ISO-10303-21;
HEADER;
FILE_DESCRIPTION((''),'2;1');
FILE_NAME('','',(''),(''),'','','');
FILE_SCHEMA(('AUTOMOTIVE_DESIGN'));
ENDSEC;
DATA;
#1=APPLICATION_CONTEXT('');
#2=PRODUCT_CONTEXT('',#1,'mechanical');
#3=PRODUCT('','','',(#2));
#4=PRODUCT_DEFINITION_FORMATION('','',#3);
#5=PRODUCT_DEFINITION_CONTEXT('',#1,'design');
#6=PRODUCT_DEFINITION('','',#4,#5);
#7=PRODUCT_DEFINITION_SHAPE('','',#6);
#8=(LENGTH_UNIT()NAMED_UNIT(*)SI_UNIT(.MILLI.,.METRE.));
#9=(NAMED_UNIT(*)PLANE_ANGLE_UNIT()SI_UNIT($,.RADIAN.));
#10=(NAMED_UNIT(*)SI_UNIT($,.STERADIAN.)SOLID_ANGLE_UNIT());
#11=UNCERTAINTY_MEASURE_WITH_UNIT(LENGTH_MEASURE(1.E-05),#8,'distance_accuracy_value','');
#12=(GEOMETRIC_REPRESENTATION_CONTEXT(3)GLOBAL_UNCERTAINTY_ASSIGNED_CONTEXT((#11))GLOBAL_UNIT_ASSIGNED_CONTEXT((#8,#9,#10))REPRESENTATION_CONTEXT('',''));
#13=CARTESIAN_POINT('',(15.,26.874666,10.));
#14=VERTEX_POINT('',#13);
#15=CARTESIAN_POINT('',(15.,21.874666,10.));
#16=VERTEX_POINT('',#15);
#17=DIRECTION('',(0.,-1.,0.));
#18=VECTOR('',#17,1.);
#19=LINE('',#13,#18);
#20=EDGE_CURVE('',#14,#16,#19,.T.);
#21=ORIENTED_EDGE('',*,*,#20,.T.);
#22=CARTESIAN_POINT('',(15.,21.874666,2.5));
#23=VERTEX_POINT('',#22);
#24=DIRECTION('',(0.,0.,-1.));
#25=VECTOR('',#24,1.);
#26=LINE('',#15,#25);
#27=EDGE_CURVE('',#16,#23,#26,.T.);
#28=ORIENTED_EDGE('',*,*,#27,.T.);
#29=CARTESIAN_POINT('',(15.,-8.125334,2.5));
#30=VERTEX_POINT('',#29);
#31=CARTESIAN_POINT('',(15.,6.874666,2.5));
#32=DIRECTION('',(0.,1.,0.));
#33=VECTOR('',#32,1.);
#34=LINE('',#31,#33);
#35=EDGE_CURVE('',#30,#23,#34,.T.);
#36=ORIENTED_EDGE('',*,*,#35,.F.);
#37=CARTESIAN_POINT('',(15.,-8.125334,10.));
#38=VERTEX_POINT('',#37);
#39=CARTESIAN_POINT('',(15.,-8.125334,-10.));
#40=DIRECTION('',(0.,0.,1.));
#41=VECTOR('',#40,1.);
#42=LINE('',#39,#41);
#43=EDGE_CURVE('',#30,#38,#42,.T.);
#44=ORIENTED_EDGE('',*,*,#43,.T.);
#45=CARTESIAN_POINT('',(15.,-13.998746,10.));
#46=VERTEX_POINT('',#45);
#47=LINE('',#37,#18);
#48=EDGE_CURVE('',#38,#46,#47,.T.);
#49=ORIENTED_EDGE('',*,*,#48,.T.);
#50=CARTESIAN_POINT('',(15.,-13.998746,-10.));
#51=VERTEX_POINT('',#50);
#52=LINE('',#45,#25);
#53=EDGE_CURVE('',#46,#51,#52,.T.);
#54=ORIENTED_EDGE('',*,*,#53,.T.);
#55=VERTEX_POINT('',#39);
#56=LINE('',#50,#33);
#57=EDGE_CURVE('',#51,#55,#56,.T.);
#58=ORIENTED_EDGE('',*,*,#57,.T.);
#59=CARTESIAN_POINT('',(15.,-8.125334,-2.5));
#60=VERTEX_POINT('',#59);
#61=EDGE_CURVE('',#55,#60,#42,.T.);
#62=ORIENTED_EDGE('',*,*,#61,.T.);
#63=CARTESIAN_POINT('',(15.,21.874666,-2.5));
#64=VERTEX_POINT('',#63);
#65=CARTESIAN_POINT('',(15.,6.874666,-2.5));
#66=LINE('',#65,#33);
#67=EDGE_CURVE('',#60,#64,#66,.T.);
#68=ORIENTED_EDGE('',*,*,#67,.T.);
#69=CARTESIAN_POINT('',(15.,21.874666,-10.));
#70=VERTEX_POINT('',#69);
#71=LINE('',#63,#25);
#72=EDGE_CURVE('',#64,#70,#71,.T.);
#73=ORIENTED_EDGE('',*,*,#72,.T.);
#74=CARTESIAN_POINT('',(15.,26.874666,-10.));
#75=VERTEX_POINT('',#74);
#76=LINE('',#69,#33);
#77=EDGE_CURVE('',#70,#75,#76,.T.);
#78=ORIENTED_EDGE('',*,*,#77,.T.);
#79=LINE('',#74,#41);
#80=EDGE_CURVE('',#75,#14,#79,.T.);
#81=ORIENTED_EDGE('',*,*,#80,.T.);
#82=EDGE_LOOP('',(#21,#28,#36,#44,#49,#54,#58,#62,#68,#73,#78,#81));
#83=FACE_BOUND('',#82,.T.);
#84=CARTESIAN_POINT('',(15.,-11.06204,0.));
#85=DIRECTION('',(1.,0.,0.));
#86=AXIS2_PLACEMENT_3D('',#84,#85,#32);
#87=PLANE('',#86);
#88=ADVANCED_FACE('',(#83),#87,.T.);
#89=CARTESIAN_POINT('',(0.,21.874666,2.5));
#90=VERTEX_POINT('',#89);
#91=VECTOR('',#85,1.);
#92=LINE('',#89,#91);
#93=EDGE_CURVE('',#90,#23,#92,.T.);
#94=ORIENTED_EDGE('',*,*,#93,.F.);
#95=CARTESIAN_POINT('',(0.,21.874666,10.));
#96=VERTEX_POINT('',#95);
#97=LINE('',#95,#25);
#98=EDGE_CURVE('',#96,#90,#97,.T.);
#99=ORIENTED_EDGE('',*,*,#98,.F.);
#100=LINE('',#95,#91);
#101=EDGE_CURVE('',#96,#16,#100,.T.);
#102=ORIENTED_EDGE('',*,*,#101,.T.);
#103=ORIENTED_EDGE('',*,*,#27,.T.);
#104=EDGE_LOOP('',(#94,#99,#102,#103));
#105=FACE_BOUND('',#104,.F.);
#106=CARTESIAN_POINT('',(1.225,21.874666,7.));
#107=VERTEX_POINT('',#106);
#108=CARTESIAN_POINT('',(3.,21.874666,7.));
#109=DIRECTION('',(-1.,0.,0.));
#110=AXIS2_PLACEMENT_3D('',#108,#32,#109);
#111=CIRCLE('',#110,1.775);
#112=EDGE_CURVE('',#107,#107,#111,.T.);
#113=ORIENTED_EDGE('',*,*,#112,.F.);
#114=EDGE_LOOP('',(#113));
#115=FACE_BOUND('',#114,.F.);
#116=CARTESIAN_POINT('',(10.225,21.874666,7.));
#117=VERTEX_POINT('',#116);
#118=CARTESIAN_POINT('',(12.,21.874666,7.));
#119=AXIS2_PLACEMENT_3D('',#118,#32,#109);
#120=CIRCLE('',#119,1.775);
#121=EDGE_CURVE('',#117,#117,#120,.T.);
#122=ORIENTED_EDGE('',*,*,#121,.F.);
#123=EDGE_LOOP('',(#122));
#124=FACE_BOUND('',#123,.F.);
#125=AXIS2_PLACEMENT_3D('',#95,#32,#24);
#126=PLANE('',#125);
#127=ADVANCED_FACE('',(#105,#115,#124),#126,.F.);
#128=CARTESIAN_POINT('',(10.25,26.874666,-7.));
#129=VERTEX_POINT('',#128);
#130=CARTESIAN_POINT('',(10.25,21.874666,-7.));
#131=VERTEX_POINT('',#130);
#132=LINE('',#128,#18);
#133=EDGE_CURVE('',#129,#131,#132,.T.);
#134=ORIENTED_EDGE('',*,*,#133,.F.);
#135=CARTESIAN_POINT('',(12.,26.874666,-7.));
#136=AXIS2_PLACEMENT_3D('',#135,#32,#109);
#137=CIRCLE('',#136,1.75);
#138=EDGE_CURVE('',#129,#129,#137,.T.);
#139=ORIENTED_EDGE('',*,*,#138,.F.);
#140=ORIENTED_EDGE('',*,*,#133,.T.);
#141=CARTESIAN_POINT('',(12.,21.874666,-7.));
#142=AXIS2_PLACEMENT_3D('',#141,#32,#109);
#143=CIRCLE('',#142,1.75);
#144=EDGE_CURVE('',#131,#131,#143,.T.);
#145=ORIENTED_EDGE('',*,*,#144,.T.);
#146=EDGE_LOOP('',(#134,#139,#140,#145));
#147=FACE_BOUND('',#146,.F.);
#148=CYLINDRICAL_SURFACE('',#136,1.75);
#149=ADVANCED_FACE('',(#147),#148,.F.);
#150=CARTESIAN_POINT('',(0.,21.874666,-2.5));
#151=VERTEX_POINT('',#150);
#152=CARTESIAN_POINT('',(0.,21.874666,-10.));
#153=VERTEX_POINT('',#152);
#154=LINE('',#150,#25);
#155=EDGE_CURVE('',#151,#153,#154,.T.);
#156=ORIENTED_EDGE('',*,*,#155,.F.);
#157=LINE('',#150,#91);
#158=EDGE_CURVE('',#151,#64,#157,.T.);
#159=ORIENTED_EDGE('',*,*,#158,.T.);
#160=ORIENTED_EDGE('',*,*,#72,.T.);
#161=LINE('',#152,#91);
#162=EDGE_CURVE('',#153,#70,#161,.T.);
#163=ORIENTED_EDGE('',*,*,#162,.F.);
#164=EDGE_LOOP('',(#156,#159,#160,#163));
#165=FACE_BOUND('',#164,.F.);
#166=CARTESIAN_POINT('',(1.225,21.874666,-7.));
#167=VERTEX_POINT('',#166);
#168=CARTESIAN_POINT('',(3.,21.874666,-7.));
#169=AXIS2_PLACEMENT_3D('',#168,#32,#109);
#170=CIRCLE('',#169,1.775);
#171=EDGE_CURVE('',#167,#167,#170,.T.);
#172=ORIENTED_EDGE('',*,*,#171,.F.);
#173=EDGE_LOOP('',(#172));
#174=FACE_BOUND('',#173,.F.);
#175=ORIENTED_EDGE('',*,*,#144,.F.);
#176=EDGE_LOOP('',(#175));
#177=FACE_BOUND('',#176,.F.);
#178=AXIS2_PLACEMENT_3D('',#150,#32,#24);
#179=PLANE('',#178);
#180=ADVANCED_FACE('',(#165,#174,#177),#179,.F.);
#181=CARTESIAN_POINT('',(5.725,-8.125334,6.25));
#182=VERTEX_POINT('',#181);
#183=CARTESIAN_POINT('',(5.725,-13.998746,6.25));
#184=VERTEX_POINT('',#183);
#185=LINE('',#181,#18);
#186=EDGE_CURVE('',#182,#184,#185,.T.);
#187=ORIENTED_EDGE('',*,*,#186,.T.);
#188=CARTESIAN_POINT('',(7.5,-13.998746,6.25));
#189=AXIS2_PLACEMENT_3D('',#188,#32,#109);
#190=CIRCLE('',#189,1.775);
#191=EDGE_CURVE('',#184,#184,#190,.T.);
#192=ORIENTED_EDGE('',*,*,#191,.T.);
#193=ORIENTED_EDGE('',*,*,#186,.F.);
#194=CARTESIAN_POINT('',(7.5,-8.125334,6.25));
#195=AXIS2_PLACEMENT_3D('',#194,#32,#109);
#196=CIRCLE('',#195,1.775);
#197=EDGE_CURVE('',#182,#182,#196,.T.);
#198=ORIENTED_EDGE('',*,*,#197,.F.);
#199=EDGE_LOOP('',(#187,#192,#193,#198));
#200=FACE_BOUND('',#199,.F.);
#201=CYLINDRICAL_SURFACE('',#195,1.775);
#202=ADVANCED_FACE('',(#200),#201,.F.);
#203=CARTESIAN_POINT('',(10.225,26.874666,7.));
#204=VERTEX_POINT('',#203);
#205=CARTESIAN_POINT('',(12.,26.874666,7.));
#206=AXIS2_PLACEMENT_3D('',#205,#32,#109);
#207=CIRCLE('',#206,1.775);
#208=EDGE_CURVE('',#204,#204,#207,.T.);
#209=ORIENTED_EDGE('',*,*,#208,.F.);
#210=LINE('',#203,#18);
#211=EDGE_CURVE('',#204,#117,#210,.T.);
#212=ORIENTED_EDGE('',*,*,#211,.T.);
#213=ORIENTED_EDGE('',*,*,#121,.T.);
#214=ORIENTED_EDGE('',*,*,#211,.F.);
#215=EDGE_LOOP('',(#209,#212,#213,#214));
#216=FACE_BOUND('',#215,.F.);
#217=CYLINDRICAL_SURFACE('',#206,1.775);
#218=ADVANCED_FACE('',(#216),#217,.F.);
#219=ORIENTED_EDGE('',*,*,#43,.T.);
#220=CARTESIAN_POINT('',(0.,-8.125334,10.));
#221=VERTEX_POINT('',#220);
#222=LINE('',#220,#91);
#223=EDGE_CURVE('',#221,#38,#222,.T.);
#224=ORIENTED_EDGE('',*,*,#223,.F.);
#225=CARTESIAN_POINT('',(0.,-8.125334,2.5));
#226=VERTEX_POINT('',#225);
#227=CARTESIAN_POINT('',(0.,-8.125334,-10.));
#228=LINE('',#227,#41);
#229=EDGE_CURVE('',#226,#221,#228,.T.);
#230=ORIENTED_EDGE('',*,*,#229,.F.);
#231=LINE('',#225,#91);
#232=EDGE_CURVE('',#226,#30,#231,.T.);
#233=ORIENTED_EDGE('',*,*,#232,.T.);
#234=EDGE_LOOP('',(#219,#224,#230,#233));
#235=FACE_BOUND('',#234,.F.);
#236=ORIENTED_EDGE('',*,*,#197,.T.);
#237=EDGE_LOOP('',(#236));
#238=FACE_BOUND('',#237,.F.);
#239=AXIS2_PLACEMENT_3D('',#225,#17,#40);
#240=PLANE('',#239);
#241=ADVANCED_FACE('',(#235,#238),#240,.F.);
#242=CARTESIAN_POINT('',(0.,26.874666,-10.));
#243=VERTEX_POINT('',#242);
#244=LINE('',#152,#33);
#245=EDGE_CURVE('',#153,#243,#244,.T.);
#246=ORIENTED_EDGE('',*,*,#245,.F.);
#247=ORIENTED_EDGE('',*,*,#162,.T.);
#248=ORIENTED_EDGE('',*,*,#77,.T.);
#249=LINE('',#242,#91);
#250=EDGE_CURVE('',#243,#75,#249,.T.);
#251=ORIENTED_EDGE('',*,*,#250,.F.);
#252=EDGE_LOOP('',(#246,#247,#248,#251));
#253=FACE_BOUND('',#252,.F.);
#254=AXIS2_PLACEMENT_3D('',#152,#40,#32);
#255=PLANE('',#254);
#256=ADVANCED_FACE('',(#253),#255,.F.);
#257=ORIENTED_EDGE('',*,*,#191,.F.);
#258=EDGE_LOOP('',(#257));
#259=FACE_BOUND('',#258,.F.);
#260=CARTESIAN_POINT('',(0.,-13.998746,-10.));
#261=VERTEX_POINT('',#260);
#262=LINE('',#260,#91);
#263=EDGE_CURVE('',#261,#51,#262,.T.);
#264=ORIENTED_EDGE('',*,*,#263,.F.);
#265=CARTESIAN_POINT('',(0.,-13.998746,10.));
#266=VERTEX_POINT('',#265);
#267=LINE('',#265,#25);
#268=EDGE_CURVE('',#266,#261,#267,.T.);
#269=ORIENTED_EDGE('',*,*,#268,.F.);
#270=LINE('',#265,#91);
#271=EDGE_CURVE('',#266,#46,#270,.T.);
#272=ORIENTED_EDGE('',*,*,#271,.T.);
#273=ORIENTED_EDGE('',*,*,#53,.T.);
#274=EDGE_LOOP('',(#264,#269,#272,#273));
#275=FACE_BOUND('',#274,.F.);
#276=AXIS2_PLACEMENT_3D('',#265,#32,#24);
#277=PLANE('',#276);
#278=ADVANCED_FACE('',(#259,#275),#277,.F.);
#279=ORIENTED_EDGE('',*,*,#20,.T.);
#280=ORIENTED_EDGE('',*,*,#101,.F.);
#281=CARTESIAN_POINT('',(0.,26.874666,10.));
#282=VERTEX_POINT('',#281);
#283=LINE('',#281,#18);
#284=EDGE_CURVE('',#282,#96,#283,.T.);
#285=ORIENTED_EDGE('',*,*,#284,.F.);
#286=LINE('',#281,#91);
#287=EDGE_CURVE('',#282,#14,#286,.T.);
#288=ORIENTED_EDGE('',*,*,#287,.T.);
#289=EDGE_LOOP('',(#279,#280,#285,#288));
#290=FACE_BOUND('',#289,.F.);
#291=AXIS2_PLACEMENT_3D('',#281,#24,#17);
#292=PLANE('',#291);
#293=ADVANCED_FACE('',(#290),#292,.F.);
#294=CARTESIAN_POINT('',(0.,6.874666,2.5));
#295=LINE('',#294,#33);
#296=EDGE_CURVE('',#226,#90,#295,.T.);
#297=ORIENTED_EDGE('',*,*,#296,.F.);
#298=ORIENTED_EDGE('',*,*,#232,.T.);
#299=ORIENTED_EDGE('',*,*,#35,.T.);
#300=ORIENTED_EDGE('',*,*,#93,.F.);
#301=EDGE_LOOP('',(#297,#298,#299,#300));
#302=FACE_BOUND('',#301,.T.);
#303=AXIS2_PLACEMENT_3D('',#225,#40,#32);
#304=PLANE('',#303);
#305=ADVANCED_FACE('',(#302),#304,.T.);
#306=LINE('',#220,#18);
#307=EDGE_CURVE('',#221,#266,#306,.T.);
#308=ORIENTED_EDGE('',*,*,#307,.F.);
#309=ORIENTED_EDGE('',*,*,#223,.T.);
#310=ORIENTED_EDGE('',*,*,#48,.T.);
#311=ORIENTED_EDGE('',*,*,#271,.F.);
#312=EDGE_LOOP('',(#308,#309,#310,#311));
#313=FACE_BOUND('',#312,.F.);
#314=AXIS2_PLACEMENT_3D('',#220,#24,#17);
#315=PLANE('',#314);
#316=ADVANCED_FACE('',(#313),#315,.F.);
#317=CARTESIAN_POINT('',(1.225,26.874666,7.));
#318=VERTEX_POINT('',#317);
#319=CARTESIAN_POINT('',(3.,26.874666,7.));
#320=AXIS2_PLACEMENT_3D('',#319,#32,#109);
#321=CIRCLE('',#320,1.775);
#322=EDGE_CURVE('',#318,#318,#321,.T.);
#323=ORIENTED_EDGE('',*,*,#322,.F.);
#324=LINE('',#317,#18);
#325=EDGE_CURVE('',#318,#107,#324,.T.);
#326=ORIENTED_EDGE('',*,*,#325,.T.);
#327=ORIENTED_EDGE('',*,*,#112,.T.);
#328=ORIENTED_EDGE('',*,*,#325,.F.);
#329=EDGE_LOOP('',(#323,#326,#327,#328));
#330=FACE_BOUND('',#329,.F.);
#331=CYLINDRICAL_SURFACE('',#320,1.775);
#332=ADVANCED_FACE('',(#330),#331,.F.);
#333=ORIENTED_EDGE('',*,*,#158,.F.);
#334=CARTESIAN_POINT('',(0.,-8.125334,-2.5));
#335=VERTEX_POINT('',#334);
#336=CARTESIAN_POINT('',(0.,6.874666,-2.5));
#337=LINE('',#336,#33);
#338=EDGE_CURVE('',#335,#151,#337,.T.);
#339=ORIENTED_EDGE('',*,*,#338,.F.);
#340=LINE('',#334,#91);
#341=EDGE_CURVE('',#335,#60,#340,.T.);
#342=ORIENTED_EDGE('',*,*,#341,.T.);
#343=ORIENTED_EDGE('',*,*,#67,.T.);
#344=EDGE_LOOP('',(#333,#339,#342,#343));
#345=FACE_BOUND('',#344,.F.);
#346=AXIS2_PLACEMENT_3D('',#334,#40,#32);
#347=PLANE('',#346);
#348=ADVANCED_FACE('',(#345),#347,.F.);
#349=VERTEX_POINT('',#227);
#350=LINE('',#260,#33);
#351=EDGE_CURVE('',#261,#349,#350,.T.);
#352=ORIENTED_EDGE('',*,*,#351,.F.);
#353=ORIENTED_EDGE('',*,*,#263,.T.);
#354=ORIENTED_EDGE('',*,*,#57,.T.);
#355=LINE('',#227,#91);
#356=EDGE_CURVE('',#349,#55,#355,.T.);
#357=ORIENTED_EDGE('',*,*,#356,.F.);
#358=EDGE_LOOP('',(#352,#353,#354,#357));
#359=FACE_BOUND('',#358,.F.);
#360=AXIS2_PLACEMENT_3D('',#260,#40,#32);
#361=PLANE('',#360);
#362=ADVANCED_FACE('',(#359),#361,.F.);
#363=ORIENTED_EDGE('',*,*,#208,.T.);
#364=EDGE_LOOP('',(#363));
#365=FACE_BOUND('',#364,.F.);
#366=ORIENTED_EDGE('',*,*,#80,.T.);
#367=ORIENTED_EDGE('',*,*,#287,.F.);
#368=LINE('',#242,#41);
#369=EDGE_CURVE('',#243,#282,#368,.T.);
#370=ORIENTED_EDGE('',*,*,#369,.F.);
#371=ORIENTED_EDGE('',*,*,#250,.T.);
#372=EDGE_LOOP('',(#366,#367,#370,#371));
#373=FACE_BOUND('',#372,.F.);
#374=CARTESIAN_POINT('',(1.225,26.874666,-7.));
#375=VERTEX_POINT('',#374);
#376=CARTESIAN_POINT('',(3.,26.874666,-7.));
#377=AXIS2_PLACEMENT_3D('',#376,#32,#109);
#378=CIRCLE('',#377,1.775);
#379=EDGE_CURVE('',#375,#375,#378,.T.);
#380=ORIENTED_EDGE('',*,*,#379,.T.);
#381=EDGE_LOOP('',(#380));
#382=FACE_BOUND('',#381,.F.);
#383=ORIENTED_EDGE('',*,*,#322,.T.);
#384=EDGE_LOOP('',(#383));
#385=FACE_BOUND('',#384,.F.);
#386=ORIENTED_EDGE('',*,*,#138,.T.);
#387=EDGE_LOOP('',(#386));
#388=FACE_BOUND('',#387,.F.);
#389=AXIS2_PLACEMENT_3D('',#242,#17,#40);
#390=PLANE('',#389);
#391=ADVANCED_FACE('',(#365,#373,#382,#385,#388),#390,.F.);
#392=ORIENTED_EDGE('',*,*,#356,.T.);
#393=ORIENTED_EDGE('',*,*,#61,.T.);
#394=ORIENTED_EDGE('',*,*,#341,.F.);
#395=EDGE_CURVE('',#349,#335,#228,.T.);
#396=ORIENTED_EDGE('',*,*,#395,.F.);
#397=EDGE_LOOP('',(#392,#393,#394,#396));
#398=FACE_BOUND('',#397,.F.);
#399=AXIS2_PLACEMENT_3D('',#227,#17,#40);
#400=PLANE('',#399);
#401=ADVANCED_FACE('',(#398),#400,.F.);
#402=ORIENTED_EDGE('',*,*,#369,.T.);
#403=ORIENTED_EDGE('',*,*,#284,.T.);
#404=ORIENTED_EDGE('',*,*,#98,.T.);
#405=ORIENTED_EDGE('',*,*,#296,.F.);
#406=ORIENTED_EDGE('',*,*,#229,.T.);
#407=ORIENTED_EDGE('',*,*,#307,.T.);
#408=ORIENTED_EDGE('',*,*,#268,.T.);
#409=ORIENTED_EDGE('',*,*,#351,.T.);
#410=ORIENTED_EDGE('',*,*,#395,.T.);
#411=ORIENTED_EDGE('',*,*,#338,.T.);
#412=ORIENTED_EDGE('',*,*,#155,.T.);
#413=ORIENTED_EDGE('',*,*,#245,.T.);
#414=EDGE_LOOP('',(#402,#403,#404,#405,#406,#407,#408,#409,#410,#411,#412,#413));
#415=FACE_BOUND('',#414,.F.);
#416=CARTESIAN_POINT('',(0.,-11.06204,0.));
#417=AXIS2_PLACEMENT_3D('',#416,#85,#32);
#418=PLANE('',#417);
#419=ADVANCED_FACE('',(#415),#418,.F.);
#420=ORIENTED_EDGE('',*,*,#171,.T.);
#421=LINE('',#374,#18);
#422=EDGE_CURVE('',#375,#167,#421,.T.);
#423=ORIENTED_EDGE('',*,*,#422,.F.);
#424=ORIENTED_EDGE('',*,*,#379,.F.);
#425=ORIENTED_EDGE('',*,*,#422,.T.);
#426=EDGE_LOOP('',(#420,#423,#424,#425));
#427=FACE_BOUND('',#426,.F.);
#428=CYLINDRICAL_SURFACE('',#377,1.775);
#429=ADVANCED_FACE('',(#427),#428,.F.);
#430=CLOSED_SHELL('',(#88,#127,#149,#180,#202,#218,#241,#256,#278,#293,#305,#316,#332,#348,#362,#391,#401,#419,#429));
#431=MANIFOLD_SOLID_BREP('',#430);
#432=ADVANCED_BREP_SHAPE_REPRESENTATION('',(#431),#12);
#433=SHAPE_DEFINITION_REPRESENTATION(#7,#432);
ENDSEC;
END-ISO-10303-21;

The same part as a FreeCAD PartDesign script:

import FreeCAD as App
import Part
import Sketcher

doc = App.newDocument("Part")
body = doc.addObject("PartDesign::Body", "Body")

sketch1 = body.newObject("Sketcher::SketchObject", "Sketch")
sketch1.AttachmentSupport = (doc.getObject("YZ_Plane"), [""])
sketch1.MapMode = "FlatFace"
sketch1.addGeometry(Part.LineSegment(App.Vector(-8, 10, 0), App.Vector(-14, 10, 0)), False)
sketch1.addGeometry(Part.LineSegment(App.Vector(-14, 10, 0), App.Vector(-14, -10, 0)), False)
sketch1.addGeometry(Part.LineSegment(App.Vector(-14, -10, 0), App.Vector(-8, -10, 0)), False)
sketch1.addGeometry(Part.LineSegment(App.Vector(-8, -10, 0), App.Vector(-8, -2, 0)), False)
sketch1.addGeometry(Part.LineSegment(App.Vector(-8, -2, 0), App.Vector(22, -2, 0)), False)
sketch1.addGeometry(Part.LineSegment(App.Vector(22, -2, 0), App.Vector(22, -10, 0)), False)
sketch1.addGeometry(Part.LineSegment(App.Vector(22, -10, 0), App.Vector(27, -10, 0)), False)
sketch1.addGeometry(Part.LineSegment(App.Vector(27, -10, 0), App.Vector(27, 10, 0)), False)
sketch1.addGeometry(Part.LineSegment(App.Vector(27, 10, 0), App.Vector(22, 10, 0)), False)
sketch1.addGeometry(Part.LineSegment(App.Vector(22, 10, 0), App.Vector(22, 2, 0)), False)
sketch1.addGeometry(Part.LineSegment(App.Vector(22, 2, 0), App.Vector(-8, 2, 0)), False)
sketch1.addGeometry(Part.LineSegment(App.Vector(-8, 2, 0), App.Vector(-8, 10, 0)), False)
sketch1.addConstraint(Sketcher.Constraint("Coincident", 0, 2, 1, 1))
sketch1.addConstraint(Sketcher.Constraint("Coincident", 1, 2, 2, 1))
sketch1.addConstraint(Sketcher.Constraint("Coincident", 2, 2, 3, 1))
sketch1.addConstraint(Sketcher.Constraint("Coincident", 3, 2, 4, 1))
sketch1.addConstraint(Sketcher.Constraint("Coincident", 4, 2, 5, 1))
sketch1.addConstraint(Sketcher.Constraint("Coincident", 5, 2, 6, 1))
sketch1.addConstraint(Sketcher.Constraint("Coincident", 6, 2, 7, 1))
sketch1.addConstraint(Sketcher.Constraint("Coincident", 7, 2, 8, 1))
sketch1.addConstraint(Sketcher.Constraint("Coincident", 8, 2, 9, 1))
sketch1.addConstraint(Sketcher.Constraint("Coincident", 9, 2, 10, 1))
sketch1.addConstraint(Sketcher.Constraint("Coincident", 10, 2, 11, 1))
sketch1.addConstraint(Sketcher.Constraint("Coincident", 11, 2, 0, 1))
sketch1.addConstraint(Sketcher.Constraint("Horizontal", 0))
sketch1.addConstraint(Sketcher.Constraint("Vertical", 1))
sketch1.addConstraint(Sketcher.Constraint("Horizontal", 2))
sketch1.addConstraint(Sketcher.Constraint("Vertical", 3))
sketch1.addConstraint(Sketcher.Constraint("Horizontal", 4))
sketch1.addConstraint(Sketcher.Constraint("Vertical", 5))
sketch1.addConstraint(Sketcher.Constraint("Horizontal", 6))
sketch1.addConstraint(Sketcher.Constraint("Vertical", 7))
sketch1.addConstraint(Sketcher.Constraint("Horizontal", 8))
sketch1.addConstraint(Sketcher.Constraint("Vertical", 9))
sketch1.addConstraint(Sketcher.Constraint("Horizontal", 10))
sketch1.addConstraint(Sketcher.Constraint("Vertical", 11))
sketch1.addConstraint(Sketcher.Constraint("Symmetric", 5, 2, 8, 2, -1))
sketch1.addConstraint(Sketcher.Constraint("Symmetric", 3, 2, 10, 2, -1))
sketch1.addConstraint(Sketcher.Constraint("Horizontal", 2, 2, 5, 2))
sketch1.addConstraint(Sketcher.Constraint("Horizontal", 0, 2, 7, 2))
sketch1.addConstraint(Sketcher.Constraint("DistanceX", 4, 1, 4, 2, 30.0))
sketch1.addConstraint(Sketcher.Constraint("DistanceX", 6, 1, 6, 2, 5.0))
sketch1.addConstraint(Sketcher.Constraint("DistanceY", 1, 2, 1, 1, 20.0))
sketch1.addConstraint(Sketcher.Constraint("DistanceY", 3, 1, 3, 2, 7.5))
sketch1.addConstraint(Sketcher.Constraint("DistanceX", 0, 2, 0, 1, 5.873412))
sketch1.addConstraint(Sketcher.Constraint("DistanceX", 0, 2, -1, 1, 13.998746))
pad1 = body.newObject("PartDesign::Pad", "Pad")
pad1.Profile = sketch1
pad1.Length = 15

sketch2 = body.newObject("Sketcher::SketchObject", "Sketch001")
sketch2.AttachmentSupport = (doc.getObject("XZ_Plane"), [""])
sketch2.MapMode = "FlatFace"
sketch2.AttachmentOffset = App.Placement(App.Vector(0, 0, 8.125334), App.Rotation())
sketch2.addGeometry(Part.Circle(App.Vector(7.5, 6.2, 0), App.Vector(0, 0, 1), 1.8), False)
sketch2.addConstraint(Sketcher.Constraint("Diameter", 0, 3.55))
sketch2.addConstraint(Sketcher.Constraint("DistanceX", -1, 1, 0, 3, 7.5))
sketch2.addConstraint(Sketcher.Constraint("DistanceY", -1, 1, 0, 3, 6.25))
pocket1 = body.newObject("PartDesign::Pocket", "Pocket")
pocket1.Profile = sketch2
pocket1.Length = 25
pocket1.Reversed = True

sketch3 = body.newObject("Sketcher::SketchObject", "Sketch002")
sketch3.AttachmentSupport = (doc.getObject("XZ_Plane"), [""])
sketch3.MapMode = "FlatFace"
sketch3.AttachmentOffset = App.Placement(App.Vector(0, 0, -26.874666), App.Rotation())
sketch3.addGeometry(Part.Circle(App.Vector(12, 7, 0), App.Vector(0, 0, 1), 1.8), False)
sketch3.addGeometry(Part.Circle(App.Vector(3, 7, 0), App.Vector(0, 0, 1), 1.8), False)
sketch3.addGeometry(Part.Circle(App.Vector(3, -7, 0), App.Vector(0, 0, 1), 1.8), False)
sketch3.addGeometry(Part.Circle(App.Vector(12, -7, 0), App.Vector(0, 0, 1), 1.8), False)
sketch3.addConstraint(Sketcher.Constraint("Equal", 0, 1))
sketch3.addConstraint(Sketcher.Constraint("Equal", 1, 2))
sketch3.addConstraint(Sketcher.Constraint("Symmetric", 1, 3, 2, 3, -1))
sketch3.addConstraint(Sketcher.Constraint("Symmetric", 0, 3, 3, 3, -1))
sketch3.addConstraint(Sketcher.Constraint("Horizontal", 0, 3, 1, 3))
sketch3.addConstraint(Sketcher.Constraint("Diameter", 3, 3.5))
sketch3.addConstraint(Sketcher.Constraint("Diameter", 0, 3.55))
sketch3.addConstraint(Sketcher.Constraint("DistanceX", -1, 1, 0, 3, 12.0))
sketch3.addConstraint(Sketcher.Constraint("DistanceY", -1, 1, 0, 3, 7.0))
sketch3.addConstraint(Sketcher.Constraint("DistanceX", -1, 1, 1, 3, 3.0))
pocket2 = body.newObject("PartDesign::Pocket", "Pocket001")
pocket2.Profile = sketch3
pocket2.Length = 25
pocket2.Reversed = True

doc.recompute()
